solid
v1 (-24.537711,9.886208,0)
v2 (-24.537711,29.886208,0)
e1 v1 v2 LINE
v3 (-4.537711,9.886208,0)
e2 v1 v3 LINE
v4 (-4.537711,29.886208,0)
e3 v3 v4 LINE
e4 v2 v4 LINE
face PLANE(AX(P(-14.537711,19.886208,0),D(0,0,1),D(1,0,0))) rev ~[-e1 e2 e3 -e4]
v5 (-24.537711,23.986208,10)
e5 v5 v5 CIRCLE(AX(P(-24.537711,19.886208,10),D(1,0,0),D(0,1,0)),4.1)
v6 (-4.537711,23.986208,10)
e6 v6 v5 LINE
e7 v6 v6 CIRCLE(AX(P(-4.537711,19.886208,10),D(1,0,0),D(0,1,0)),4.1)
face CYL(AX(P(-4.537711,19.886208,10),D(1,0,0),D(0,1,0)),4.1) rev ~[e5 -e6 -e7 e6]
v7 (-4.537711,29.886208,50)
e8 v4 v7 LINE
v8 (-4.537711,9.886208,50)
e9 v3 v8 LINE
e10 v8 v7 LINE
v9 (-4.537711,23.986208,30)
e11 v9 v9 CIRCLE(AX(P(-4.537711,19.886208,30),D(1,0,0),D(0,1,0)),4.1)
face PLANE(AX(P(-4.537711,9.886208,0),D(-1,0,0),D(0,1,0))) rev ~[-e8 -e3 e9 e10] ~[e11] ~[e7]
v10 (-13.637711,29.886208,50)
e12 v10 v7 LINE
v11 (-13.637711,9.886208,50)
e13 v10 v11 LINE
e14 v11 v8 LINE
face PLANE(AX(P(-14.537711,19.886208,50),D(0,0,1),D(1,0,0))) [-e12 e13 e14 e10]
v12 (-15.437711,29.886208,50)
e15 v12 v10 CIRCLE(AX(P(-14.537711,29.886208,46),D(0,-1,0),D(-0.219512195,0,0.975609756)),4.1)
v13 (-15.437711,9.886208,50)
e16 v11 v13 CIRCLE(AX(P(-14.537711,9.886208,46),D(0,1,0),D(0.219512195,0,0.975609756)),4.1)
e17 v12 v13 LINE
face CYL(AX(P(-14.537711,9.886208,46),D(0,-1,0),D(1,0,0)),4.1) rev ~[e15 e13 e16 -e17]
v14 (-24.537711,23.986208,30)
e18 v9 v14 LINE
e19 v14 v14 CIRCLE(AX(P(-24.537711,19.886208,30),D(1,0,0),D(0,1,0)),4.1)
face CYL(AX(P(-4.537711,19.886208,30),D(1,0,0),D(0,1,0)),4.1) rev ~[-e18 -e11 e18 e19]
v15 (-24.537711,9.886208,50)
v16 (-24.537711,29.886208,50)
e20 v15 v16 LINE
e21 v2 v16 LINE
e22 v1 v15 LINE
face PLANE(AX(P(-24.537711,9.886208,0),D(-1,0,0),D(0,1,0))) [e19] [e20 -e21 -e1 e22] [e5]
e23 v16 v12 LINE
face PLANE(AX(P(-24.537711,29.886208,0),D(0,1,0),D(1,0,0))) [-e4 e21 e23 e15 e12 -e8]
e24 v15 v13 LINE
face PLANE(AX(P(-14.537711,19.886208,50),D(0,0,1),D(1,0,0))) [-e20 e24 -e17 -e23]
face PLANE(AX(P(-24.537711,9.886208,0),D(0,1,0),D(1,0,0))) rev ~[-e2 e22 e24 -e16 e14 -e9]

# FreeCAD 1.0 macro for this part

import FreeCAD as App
import Part
import Sketcher
from FreeCAD import Vector


def add_polygon(sketch, points):
    """Adds a closed chain of lines whose ends are joined by coincident constraints."""
    first, n = sketch.GeometryCount, len(points)
    for a, b in zip(points, points[1:] + points[:1]):
        sketch.addGeometry(Part.LineSegment(App.Vector(*a, 0), App.Vector(*b, 0)), False)
    for i in range(n):
        sketch.addConstraint(Sketcher.Constraint("Coincident", first + i, 2, first + (i + 1) % n, 1))

doc = App.newDocument("Part")
body = doc.addObject("PartDesign::Body", "Body")

# Sketch on XY plane
sketch1 = body.newObject("Sketcher::SketchObject", "Sketch")
sketch1.AttachmentSupport = (doc.getObject("XY_Plane"), [""])
sketch1.MapMode = "FlatFace"
add_polygon(sketch1, [(-25, 30), (-25, 10), (-5, 10), (-5, 30)])  # lines 0-3
sketch1.addConstraint(Sketcher.Constraint("Vertical", 0))
sketch1.addConstraint(Sketcher.Constraint("Horizontal", 1))
sketch1.addConstraint(Sketcher.Constraint("Vertical", 2))
sketch1.addConstraint(Sketcher.Constraint("Horizontal", 3))
sketch1.addConstraint(Sketcher.Constraint("Equal", 3, 0))
sketch1.addConstraint(Sketcher.Constraint("DistanceX", 1, 1, 1, 2, 20.0))
sketch1.addConstraint(Sketcher.Constraint("DistanceX", 0, 2, -1, 1, 24.537711))
sketch1.addConstraint(Sketcher.Constraint("DistanceY", -1, 1, 2, 2, 29.886208))
pad1 = body.newObject("PartDesign::Pad", "Pad")
pad1.Profile = sketch1
pad1.Length = 50

# Sketch on YZ plane
sketch2 = body.newObject("Sketcher::SketchObject", "Sketch001")
sketch2.AttachmentSupport = (doc.getObject("YZ_Plane"), [""])
sketch2.MapMode = "FlatFace"
sketch2.AttachmentOffset = App.Placement(Vector(0, 0, -4.537711), App.Rotation())
sketch2.addGeometry(Part.Circle(Vector(19.9, 30, 0), Vector(0, 0, 1), 4.1), False)
sketch2.addGeometry(Part.Circle(Vector(19.9, 10, 0), Vector(0, 0, 1), 4.1), False)
sketch2.addConstraint(Sketcher.Constraint("Equal", 0, 1))
sketch2.addConstraint(Sketcher.Constraint("Vertical", 0, 3, 1, 3))
sketch2.addConstraint(Sketcher.Constraint("Diameter", 0, 8.2))
sketch2.addConstraint(Sketcher.Constraint("DistanceY", -1, 1, 0, 3, 30.0))
sketch2.addConstraint(Sketcher.Constraint("DistanceY", -1, 1, 1, 3, 10.0))
sketch2.addConstraint(Sketcher.Constraint("DistanceX", -1, 1, 0, 3, 19.886208))
pocket1 = body.newObject("PartDesign::Pocket", "Pocket")
pocket1.Profile = sketch2
pocket1.Length = 20

# Sketch on XZ plane
sketch3 = body.newObject("Sketcher::SketchObject", "Sketch002")
sketch3.AttachmentSupport = (doc.getObject("XZ_Plane"), [""])
sketch3.MapMode = "FlatFace"
sketch3.AttachmentOffset = App.Placement(Vector(0, 0, -9.886208), App.Rotation())
sketch3.addGeometry(Part.Circle(Vector(-14.5, 46, 0), Vector(0, 0, 1), 4.1), False)
sketch3.addConstraint(Sketcher.Constraint("Diameter", 0, 8.2))
sketch3.addConstraint(Sketcher.Constraint("DistanceY", -1, 1, 0, 3, 46.0))
sketch3.addConstraint(Sketcher.Constraint("DistanceX", 0, 3, -1, 1, 14.537711))
pocket2 = body.newObject("PartDesign::Pocket", "Pocket001")
pocket2.Profile = sketch3
pocket2.Length = 20

doc.recompute()
